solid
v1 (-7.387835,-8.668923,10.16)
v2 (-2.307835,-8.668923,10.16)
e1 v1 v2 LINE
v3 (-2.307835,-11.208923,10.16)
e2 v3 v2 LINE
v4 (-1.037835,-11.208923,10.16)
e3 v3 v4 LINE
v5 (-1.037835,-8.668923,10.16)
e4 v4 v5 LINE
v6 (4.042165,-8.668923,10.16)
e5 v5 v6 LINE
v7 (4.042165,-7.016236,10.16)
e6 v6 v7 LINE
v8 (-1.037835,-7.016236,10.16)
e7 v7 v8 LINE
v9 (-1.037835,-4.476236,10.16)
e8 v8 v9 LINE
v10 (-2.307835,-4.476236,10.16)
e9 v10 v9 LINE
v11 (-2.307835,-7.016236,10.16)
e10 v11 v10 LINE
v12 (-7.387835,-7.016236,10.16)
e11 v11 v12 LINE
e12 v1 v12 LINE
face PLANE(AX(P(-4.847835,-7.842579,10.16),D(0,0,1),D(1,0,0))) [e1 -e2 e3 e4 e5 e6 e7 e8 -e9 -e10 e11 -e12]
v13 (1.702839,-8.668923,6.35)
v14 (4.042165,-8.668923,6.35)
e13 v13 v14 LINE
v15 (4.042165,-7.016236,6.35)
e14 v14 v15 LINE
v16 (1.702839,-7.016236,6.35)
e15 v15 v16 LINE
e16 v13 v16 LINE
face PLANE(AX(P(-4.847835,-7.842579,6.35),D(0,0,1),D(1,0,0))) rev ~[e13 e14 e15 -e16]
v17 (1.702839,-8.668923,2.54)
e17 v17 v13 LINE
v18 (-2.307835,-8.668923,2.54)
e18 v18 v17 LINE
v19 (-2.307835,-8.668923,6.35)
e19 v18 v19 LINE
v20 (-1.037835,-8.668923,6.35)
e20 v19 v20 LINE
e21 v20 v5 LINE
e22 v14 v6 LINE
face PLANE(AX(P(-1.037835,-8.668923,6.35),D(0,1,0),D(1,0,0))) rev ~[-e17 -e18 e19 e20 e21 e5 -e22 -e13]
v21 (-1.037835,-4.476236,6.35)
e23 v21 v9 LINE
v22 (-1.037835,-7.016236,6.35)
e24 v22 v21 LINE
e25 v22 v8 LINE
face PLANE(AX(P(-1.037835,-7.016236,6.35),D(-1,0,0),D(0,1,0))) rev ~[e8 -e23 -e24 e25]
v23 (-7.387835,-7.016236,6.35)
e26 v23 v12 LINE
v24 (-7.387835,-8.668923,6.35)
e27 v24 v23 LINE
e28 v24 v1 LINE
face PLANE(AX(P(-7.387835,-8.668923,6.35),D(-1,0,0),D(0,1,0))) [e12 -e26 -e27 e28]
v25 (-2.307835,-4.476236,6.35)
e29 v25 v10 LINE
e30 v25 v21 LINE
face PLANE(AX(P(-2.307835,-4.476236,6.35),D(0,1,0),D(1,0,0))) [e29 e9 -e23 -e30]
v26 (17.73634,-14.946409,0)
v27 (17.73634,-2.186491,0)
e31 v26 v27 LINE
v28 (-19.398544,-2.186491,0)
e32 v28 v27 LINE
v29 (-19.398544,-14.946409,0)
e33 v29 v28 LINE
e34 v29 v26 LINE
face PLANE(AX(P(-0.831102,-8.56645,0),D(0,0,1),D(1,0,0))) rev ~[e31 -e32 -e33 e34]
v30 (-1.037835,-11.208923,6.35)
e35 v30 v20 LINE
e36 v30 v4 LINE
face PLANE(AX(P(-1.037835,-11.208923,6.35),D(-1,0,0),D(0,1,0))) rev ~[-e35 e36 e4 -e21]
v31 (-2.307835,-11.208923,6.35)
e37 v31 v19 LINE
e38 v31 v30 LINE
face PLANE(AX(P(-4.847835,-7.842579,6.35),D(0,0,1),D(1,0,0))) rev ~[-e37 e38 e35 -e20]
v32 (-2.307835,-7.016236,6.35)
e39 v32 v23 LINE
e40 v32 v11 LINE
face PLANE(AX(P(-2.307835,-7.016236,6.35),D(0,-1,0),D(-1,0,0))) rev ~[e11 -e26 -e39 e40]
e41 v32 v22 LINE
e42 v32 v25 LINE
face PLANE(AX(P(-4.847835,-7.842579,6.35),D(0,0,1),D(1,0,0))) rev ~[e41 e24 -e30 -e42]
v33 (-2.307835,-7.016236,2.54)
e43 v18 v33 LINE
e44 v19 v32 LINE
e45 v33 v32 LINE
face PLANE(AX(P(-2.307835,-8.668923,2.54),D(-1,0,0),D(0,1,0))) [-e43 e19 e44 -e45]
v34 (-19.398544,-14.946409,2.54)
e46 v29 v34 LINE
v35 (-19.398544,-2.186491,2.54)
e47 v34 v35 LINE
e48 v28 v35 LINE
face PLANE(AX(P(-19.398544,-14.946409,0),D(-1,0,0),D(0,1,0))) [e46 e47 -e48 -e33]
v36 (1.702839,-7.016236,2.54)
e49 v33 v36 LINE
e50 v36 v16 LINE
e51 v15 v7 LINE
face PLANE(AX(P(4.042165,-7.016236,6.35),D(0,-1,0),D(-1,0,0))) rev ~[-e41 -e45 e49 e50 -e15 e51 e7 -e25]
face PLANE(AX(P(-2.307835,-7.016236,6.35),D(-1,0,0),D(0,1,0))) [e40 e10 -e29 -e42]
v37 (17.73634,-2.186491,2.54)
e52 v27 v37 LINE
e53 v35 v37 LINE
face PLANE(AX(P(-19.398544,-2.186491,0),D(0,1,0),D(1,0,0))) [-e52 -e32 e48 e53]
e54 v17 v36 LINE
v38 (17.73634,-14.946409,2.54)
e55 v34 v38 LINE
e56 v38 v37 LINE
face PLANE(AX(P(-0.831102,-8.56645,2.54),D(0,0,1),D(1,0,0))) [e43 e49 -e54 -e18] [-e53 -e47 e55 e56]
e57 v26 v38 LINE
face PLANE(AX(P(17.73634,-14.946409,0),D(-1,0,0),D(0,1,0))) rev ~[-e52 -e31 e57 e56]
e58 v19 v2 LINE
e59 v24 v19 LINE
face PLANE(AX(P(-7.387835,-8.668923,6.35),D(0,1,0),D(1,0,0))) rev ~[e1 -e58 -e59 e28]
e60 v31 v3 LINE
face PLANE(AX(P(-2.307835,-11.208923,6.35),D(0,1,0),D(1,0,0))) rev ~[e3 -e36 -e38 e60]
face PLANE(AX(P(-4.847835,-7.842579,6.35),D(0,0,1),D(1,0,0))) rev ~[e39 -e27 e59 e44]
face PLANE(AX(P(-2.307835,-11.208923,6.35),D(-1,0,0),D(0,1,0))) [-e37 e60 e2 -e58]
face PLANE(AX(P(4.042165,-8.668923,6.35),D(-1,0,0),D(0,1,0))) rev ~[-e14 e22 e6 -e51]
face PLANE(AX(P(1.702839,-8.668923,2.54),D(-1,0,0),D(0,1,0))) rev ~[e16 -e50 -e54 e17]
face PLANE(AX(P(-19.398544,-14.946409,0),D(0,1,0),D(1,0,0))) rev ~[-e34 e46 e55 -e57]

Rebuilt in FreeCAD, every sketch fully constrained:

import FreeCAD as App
import Part
import Sketcher

V = App.Vector
Q = App.Units.Quantity

doc = App.newDocument("Part")
body = doc.addObject("PartDesign::Body", "Body")

sketch1 = doc.addObject("Sketcher::SketchObject", "Sketch")
body.addObject(sketch1)
sketch1.AttachmentSupport = (doc.XY_Plane, [""])
sketch1.MapMode = "FlatFace"
sketch1.addGeometry(Part.LineSegment(V(-19.398544, -2.186491, 0), V(-19.398544, -14.946409, 0)), False)
sketch1.addGeometry(Part.LineSegment(V(-19.398544, -14.946409, 0), V(17.73634, -14.946409, 0)), False)
sketch1.addGeometry(Part.LineSegment(V(17.73634, -14.946409, 0), V(17.73634, -2.186491, 0)), False)
sketch1.addGeometry(Part.LineSegment(V(17.73634, -2.186491, 0), V(-19.398544, -2.186491, 0)), False)
sketch1.addConstraint(Sketcher.Constraint("Coincident", 0, 2, 1, 1))
sketch1.addConstraint(Sketcher.Constraint("Coincident", 1, 2, 2, 1))
sketch1.addConstraint(Sketcher.Constraint("Coincident", 2, 2, 3, 1))
sketch1.addConstraint(Sketcher.Constraint("Coincident", 3, 2, 0, 1))
sketch1.addConstraint(Sketcher.Constraint("Vertical", 0))
sketch1.addConstraint(Sketcher.Constraint("Horizontal", 1))
sketch1.addConstraint(Sketcher.Constraint("Vertical", 2))
sketch1.addConstraint(Sketcher.Constraint("Horizontal", 3))
sketch1.addConstraint(Sketcher.Constraint("DistanceX", 1, 1, 1, 2, Q("37.134884 mm")))
sketch1.addConstraint(Sketcher.Constraint("DistanceY", 0, 2, 0, 1, Q("12.759918 mm")))
sketch1.addConstraint(Sketcher.Constraint("DistanceY", 0, 2, -1, 1, Q("14.946409 mm")))
sketch1.addConstraint(Sketcher.Constraint("DistanceX", -1, 1, 1, 2, Q("17.73634 mm")))
pad1 = doc.addObject("PartDesign::Pad", "Pad")
body.addObject(pad1)
pad1.Profile = sketch1
pad1.Length = Q("0.1 in")

sketch2 = doc.addObject("Sketcher::SketchObject", "Sketch001")
body.addObject(sketch2)
sketch2.AttachmentSupport = (doc.XY_Plane, [""])
sketch2.MapMode = "FlatFace"
sketch2.AttachmentOffset = App.Placement(V(0, 0, 0.1 * 25.4), App.Rotation())
sketch2.addGeometry(Part.LineSegment(V(-2.307835, -7.016236, 0), V(-2.307835, -8.668923, 0)), False)
sketch2.addGeometry(Part.LineSegment(V(-2.307835, -8.668923, 0), V(1.702839, -8.668923, 0)), False)
sketch2.addGeometry(Part.LineSegment(V(1.702839, -8.668923, 0), V(1.702839, -7.016236, 0)), False)
sketch2.addGeometry(Part.LineSegment(V(1.702839, -7.016236, 0), V(-2.307835, -7.016236, 0)), False)
sketch2.addConstraint(Sketcher.Constraint("Coincident", 0, 2, 1, 1))
sketch2.addConstraint(Sketcher.Constraint("Coincident", 1, 2, 2, 1))
sketch2.addConstraint(Sketcher.Constraint("Coincident", 2, 2, 3, 1))
sketch2.addConstraint(Sketcher.Constraint("Coincident", 3, 2, 0, 1))
sketch2.addConstraint(Sketcher.Constraint("Vertical", 0))
sketch2.addConstraint(Sketcher.Constraint("Horizontal", 1))
sketch2.addConstraint(Sketcher.Constraint("Vertical", 2))
sketch2.addConstraint(Sketcher.Constraint("Horizontal", 3))
sketch2.addConstraint(Sketcher.Constraint("DistanceX", 1, 1, 1, 2, Q("4.010675 mm")))
sketch2.addConstraint(Sketcher.Constraint("DistanceY", 0, 2, 0, 1, Q("1.652687 mm")))
sketch2.addConstraint(Sketcher.Constraint("DistanceX", -1, 1, 1, 2, Q("1.702839 mm")))
sketch2.addConstraint(Sketcher.Constraint("DistanceY", 0, 2, -1, 1, Q("8.668923 mm")))
pad2 = doc.addObject("PartDesign::Pad", "Pad001")
body.addObject(pad2)
pad2.Profile = sketch2
pad2.Length = Q("0.15 in")

sketch3 = doc.addObject("Sketcher::SketchObject", "Sketch002")
body.addObject(sketch3)
sketch3.AttachmentSupport = (doc.XY_Plane, [""])
sketch3.MapMode = "FlatFace"
sketch3.AttachmentOffset = App.Placement(V(0, 0, 0.25 * 25.4), App.Rotation())
sketch3.addGeometry(Part.LineSegment(V(-7.387835, -7.016236, 0), V(-7.387835, -8.668923, 0)), False)
sketch3.addGeometry(Part.LineSegment(V(-7.387835, -8.668923, 0), V(-2.307835, -8.668923, 0)), False)
sketch3.addGeometry(Part.LineSegment(V(-2.307835, -8.668923, 0), V(-2.307835, -11.208923, 0)), False)
sketch3.addGeometry(Part.LineSegment(V(-2.307835, -11.208923, 0), V(-1.037835, -11.208923, 0)), False)
sketch3.addGeometry(Part.LineSegment(V(-1.037835, -11.208923, 0), V(-1.037835, -8.668923, 0)), False)
sketch3.addGeometry(Part.LineSegment(V(-1.037835, -8.668923, 0), V(4.042165, -8.668923, 0)), False)
sketch3.addGeometry(Part.LineSegment(V(4.042165, -8.668923, 0), V(4.042165, -7.016236, 0)), False)
sketch3.addGeometry(Part.LineSegment(V(4.042165, -7.016236, 0), V(-1.037835, -7.016236, 0)), False)
sketch3.addGeometry(Part.LineSegment(V(-1.037835, -7.016236, 0), V(-1.037835, -4.476236, 0)), False)
sketch3.addGeometry(Part.LineSegment(V(-1.037835, -4.476236, 0), V(-2.307835, -4.476236, 0)), False)
sketch3.addGeometry(Part.LineSegment(V(-2.307835, -4.476236, 0), V(-2.307835, -7.016236, 0)), False)
sketch3.addGeometry(Part.LineSegment(V(-2.307835, -7.016236, 0), V(-7.387835, -7.016236, 0)), False)
sketch3.addConstraint(Sketcher.Constraint("Coincident", 0, 2, 1, 1))
sketch3.addConstraint(Sketcher.Constraint("Coincident", 1, 2, 2, 1))
sketch3.addConstraint(Sketcher.Constraint("Coincident", 2, 2, 3, 1))
sketch3.addConstraint(Sketcher.Constraint("Coincident", 3, 2, 4, 1))
sketch3.addConstraint(Sketcher.Constraint("Coincident", 4, 2, 5, 1))
sketch3.addConstraint(Sketcher.Constraint("Coincident", 5, 2, 6, 1))
sketch3.addConstraint(Sketcher.Constraint("Coincident", 6, 2, 7, 1))
sketch3.addConstraint(Sketcher.Constraint("Coincident", 7, 2, 8, 1))
sketch3.addConstraint(Sketcher.Constraint("Coincident", 8, 2, 9, 1))
sketch3.addConstraint(Sketcher.Constraint("Coincident", 9, 2, 10, 1))
sketch3.addConstraint(Sketcher.Constraint("Coincident", 10, 2, 11, 1))
sketch3.addConstraint(Sketcher.Constraint("Coincident", 11, 2, 0, 1))
sketch3.addConstraint(Sketcher.Constraint("Vertical", 0))
sketch3.addConstraint(Sketcher.Constraint("Horizontal", 1))
sketch3.addConstraint(Sketcher.Constraint("Vertical", 2))
sketch3.addConstraint(Sketcher.Constraint("Horizontal", 3))
sketch3.addConstraint(Sketcher.Constraint("Vertical", 4))
sketch3.addConstraint(Sketcher.Constraint("Horizontal", 5))
sketch3.addConstraint(Sketcher.Constraint("Vertical", 6))
sketch3.addConstraint(Sketcher.Constraint("Horizontal", 7))
sketch3.addConstraint(Sketcher.Constraint("Vertical", 8))
sketch3.addConstraint(Sketcher.Constraint("Horizontal", 9))
sketch3.addConstraint(Sketcher.Constraint("Vertical", 10))
sketch3.addConstraint(Sketcher.Constraint("Horizontal", 11))
sketch3.addConstraint(Sketcher.Constraint("Horizontal", 1, 2, 4, 2))
sketch3.addConstraint(Sketcher.Constraint("Horizontal", 7, 2, 10, 2))
sketch3.addConstraint(Sketcher.Constraint("Vertical", 4, 2, 7, 2))
sketch3.addConstraint(Sketcher.Constraint("Vertical", 2, 2, 9, 2))
sketch3.addConstraint(Sketcher.Constraint("Equal", 1, 5))
sketch3.addConstraint(Sketcher.Constraint("Equal", 4, 8))
sketch3.addConstraint(Sketcher.Constraint("DistanceX", 1, 1, 1, 2, Q("0.2 in")))
sketch3.addConstraint(Sketcher.Constraint("DistanceY", 2, 2, 2, 1, Q("0.1 in")))
sketch3.addConstraint(Sketcher.Constraint("DistanceX", 3, 1, 3, 2, Q("0.05 in")))
sketch3.addConstraint(Sketcher.Constraint("DistanceY", 0, 2, 0, 1, Q("1.652687 mm")))
sketch3.addConstraint(Sketcher.Constraint("DistanceX", 0, 2, -1, 1, Q("7.387835 mm")))
sketch3.addConstraint(Sketcher.Constraint("DistanceY", 0, 2, -1, 1, Q("8.668923 mm")))
pad3 = doc.addObject("PartDesign::Pad", "Pad002")
body.addObject(pad3)
pad3.Profile = sketch3
pad3.Length = Q("0.15 in")

doc.recompute()
